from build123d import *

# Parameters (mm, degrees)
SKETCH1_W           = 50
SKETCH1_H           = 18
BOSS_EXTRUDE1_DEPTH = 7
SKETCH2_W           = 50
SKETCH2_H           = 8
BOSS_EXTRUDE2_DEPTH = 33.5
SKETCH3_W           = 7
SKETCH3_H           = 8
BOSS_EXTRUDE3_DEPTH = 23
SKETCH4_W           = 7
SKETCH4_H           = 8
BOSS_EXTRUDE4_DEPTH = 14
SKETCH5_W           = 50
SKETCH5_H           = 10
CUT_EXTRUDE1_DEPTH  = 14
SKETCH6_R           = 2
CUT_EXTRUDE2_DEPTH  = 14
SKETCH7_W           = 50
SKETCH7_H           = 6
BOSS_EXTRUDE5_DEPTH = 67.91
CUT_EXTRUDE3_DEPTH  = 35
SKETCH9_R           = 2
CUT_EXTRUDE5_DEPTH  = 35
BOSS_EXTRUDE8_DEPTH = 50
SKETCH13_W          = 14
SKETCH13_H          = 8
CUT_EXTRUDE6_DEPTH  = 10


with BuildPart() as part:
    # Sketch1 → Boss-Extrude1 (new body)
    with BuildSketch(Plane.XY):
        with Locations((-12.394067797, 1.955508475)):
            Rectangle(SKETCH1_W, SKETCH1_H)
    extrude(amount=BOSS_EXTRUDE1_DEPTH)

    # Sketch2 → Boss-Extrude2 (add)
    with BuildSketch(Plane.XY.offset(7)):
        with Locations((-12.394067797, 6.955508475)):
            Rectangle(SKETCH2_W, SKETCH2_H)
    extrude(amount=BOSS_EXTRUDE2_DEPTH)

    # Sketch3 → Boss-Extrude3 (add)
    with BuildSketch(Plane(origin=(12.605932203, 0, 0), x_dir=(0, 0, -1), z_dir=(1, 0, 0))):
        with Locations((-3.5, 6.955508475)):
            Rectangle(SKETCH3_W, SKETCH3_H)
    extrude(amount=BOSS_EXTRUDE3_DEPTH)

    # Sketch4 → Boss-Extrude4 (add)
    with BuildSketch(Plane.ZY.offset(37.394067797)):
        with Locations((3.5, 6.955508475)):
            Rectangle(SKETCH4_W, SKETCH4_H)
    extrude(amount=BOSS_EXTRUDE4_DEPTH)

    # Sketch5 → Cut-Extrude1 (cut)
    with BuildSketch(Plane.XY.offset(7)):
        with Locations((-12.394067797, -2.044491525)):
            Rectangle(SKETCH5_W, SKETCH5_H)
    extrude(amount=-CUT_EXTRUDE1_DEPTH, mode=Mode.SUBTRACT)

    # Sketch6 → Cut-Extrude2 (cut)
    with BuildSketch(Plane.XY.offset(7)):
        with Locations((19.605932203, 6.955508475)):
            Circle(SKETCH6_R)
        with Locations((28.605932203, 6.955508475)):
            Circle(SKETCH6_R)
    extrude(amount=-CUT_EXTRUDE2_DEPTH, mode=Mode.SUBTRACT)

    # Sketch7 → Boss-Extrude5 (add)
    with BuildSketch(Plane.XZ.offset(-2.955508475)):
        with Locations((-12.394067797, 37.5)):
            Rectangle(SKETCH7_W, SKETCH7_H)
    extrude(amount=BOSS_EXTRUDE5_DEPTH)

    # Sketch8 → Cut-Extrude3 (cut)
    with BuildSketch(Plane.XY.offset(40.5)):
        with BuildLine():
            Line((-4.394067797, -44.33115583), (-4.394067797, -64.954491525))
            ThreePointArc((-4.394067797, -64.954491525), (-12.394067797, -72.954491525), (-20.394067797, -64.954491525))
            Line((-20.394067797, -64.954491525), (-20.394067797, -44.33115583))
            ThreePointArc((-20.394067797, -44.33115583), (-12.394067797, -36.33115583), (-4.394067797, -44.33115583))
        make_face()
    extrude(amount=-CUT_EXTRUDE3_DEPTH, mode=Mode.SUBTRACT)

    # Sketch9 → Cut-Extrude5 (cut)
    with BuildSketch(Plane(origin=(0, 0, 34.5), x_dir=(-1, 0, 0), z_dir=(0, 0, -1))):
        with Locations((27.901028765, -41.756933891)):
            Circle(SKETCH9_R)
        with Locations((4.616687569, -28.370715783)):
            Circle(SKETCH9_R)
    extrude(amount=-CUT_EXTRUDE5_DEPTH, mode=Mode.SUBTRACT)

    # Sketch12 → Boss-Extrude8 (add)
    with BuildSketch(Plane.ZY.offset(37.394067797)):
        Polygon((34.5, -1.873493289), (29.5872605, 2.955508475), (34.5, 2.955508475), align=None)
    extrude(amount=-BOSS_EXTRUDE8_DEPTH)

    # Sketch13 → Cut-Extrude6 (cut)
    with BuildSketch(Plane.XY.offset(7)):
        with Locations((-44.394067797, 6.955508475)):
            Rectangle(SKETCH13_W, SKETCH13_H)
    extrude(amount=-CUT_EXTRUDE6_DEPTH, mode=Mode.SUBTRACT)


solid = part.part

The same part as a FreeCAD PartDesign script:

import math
import FreeCAD as App
import Part
import Sketcher


def add_polygon(sketch, points):
    """Adds a closed chain of lines whose ends are joined by coincident constraints."""
    first, n = sketch.GeometryCount, len(points)
    for a, b in zip(points, points[1:] + points[:1]):
        sketch.addGeometry(Part.LineSegment(App.Vector(*a, 0), App.Vector(*b, 0)), False)
    for i in range(n):
        sketch.addConstraint(Sketcher.Constraint("Coincident", first + i, 2, first + (i + 1) % n, 1))

doc = App.newDocument("Part")
body = doc.addObject("PartDesign::Body", "Body")

sketch1 = doc.addObject("Sketcher::SketchObject", "Sketch")
body.addObject(sketch1)
sketch1.AttachmentSupport = (doc.XY_Plane, [""])
sketch1.MapMode = "FlatFace"
add_polygon(sketch1, [(-37, 11), (-37, -7), (13, -7), (13, 11)])
sketch1.addConstraint([
    Sketcher.Constraint("Vertical", 0),
    Sketcher.Constraint("Horizontal", 1),
    Sketcher.Constraint("Vertical", 2),
    Sketcher.Constraint("Horizontal", 3),
    Sketcher.Constraint("DistanceX", 1, 1, 1, 2, 50.0),
    Sketcher.Constraint("DistanceY", 0, 2, 0, 1, 18.0),
    Sketcher.Constraint("DistanceY", 0, 2, -1, 1, 7.044492),
    Sketcher.Constraint("DistanceX", 0, 2, -1, 1, 37.394068),
])
pad1 = doc.addObject("PartDesign::Pad", "Pad")
body.addObject(pad1)
pad1.Profile = sketch1
pad1.Length = 7

sketch2 = doc.addObject("Sketcher::SketchObject", "Sketch001")
body.addObject(sketch2)
sketch2.AttachmentSupport = (doc.XY_Plane, [""])
sketch2.MapMode = "FlatFace"
sketch2.AttachmentOffset = App.Placement(App.Vector(0, 0, 7), App.Rotation())
add_polygon(sketch2, [(-37, 11), (-37, 3), (13, 3), (13, 11)])
sketch2.addConstraint([
    Sketcher.Constraint("Vertical", 0),
    Sketcher.Constraint("Horizontal", 1),
    Sketcher.Constraint("Vertical", 2),
    Sketcher.Constraint("Horizontal", 3),
    Sketcher.Constraint("DistanceX", 1, 1, 1, 2, 50.0),
    Sketcher.Constraint("DistanceY", 0, 2, 0, 1, 8.0),
    Sketcher.Constraint("DistanceY", -1, 1, 0, 2, 2.955508),
    Sketcher.Constraint("DistanceX", 0, 2, -1, 1, 37.394068),
])
pad2 = doc.addObject("PartDesign::Pad", "Pad001")
body.addObject(pad2)
pad2.Profile = sketch2
pad2.Length = 33.5

sketch3 = doc.addObject("Sketcher::SketchObject", "Sketch002")
body.addObject(sketch3)
sketch3.AttachmentSupport = (doc.YZ_Plane, [""])
sketch3.MapMode = "FlatFace"
sketch3.AttachmentOffset = App.Placement(App.Vector(0, 0, 12.605932), App.Rotation())
add_polygon(sketch3, [(11, 7), (3, 7), (3, 0), (11, 0)])
sketch3.addConstraint([
    Sketcher.Constraint("Horizontal", 0),
    Sketcher.Constraint("Vertical", 1),
    Sketcher.Constraint("Horizontal", 2),
    Sketcher.Constraint("Vertical", 3),
    Sketcher.Constraint("PointOnObject", 1, 2, -1),
    Sketcher.Constraint("DistanceX", 0, 2, 0, 1, 8.0),
    Sketcher.Constraint("DistanceY", 1, 2, 1, 1, 7.0),
    Sketcher.Constraint("DistanceX", -1, 1, 0, 2, 2.955508),
])
pad3 = doc.addObject("PartDesign::Pad", "Pad002")
body.addObject(pad3)
pad3.Profile = sketch3
pad3.Length = 23

sketch4 = doc.addObject("Sketcher::SketchObject", "Sketch003")
body.addObject(sketch4)
sketch4.AttachmentSupport = (doc.YZ_Plane, [""])
sketch4.MapMode = "FlatFace"
sketch4.AttachmentOffset = App.Placement(App.Vector(0, 0, -37.394068), App.Rotation())
add_polygon(sketch4, [(11, 0), (3, 0), (3, 7), (11, 7)])
sketch4.addConstraint([
    Sketcher.Constraint("Horizontal", 0),
    Sketcher.Constraint("Vertical", 1),
    Sketcher.Constraint("Horizontal", 2),
    Sketcher.Constraint("Vertical", 3),
    Sketcher.Constraint("PointOnObject", 0, 2, -1),
    Sketcher.Constraint("DistanceX", 0, 2, 0, 1, 8.0),
    Sketcher.Constraint("DistanceY", 1, 1, 1, 2, 7.0),
    Sketcher.Constraint("DistanceX", -1, 1, 0, 2, 2.955508),
])
pad4 = doc.addObject("PartDesign::Pad", "Pad003")
body.addObject(pad4)
pad4.Profile = sketch4
pad4.Length = 14
pad4.Reversed = True

sketch5 = doc.addObject("Sketcher::SketchObject", "Sketch004")
body.addObject(sketch5)
sketch5.AttachmentSupport = (doc.XY_Plane, [""])
sketch5.MapMode = "FlatFace"
sketch5.AttachmentOffset = App.Placement(App.Vector(0, 0, 7), App.Rotation())
add_polygon(sketch5, [(-37, 3), (-37, -7), (13, -7), (13, 3)])
sketch5.addConstraint([
    Sketcher.Constraint("Vertical", 0),
    Sketcher.Constraint("Horizontal", 1),
    Sketcher.Constraint("Vertical", 2),
    Sketcher.Constraint("Horizontal", 3),
    Sketcher.Constraint("DistanceX", 1, 1, 1, 2, 50.0),
    Sketcher.Constraint("DistanceY", 0, 2, 0, 1, 10.0),
    Sketcher.Constraint("DistanceY", 0, 2, -1, 1, 7.044492),
    Sketcher.Constraint("DistanceX", 0, 2, -1, 1, 37.394068),
])
pocket1 = doc.addObject("PartDesign::Pocket", "Pocket")
body.addObject(pocket1)
pocket1.Profile = sketch5
pocket1.Length = 14

sketch6 = doc.addObject("Sketcher::SketchObject", "Sketch005")
body.addObject(sketch6)
sketch6.AttachmentSupport = (doc.XY_Plane, [""])
sketch6.MapMode = "FlatFace"
sketch6.AttachmentOffset = App.Placement(App.Vector(0, 0, 7), App.Rotation())
sketch6.addGeometry([
    Part.Circle(App.Vector(19.6, 7, 0), App.Vector(0, 0, 1), 2),
    Part.Circle(App.Vector(28.6, 7, 0), App.Vector(0, 0, 1), 2),
], False)
sketch6.addConstraint([
    Sketcher.Constraint("Equal", 0, 1),
    Sketcher.Constraint("Horizontal", 0, 3, 1, 3),
    Sketcher.Constraint("Diameter", 0, 4.0),
    Sketcher.Constraint("DistanceX", 0, 3, 1, 3, 9.0),
    Sketcher.Constraint("DistanceY", -1, 1, 0, 3, 6.955508),
    Sketcher.Constraint("DistanceX", -1, 1, 0, 3, 19.605932),
])
pocket2 = doc.addObject("PartDesign::Pocket", "Pocket001")
body.addObject(pocket2)
pocket2.Profile = sketch6
pocket2.Length = 14

sketch7 = doc.addObject("Sketcher::SketchObject", "Sketch006")
body.addObject(sketch7)
sketch7.AttachmentSupport = (doc.XZ_Plane, [""])
sketch7.MapMode = "FlatFace"
sketch7.AttachmentOffset = App.Placement(App.Vector(0, 0, -2.955508), App.Rotation())
add_polygon(sketch7, [(-37, 40), (-37, 34), (13, 34), (13, 40)])
sketch7.addConstraint([
    Sketcher.Constraint("Vertical", 0),
    Sketcher.Constraint("Horizontal", 1),
    Sketcher.Constraint("Vertical", 2),
    Sketcher.Constraint("Horizontal", 3),
    Sketcher.Constraint("DistanceX", 1, 1, 1, 2, 50.0),
    Sketcher.Constraint("DistanceY", 0, 2, 0, 1, 6.0),
    Sketcher.Constraint("DistanceY", -1, 1, 0, 2, 34.5),
    Sketcher.Constraint("DistanceX", 0, 2, -1, 1, 37.394068),
])
pad5 = doc.addObject("PartDesign::Pad", "Pad004")
body.addObject(pad5)
pad5.Profile = sketch7
pad5.Length = 67.91

sketch8 = doc.addObject("Sketcher::SketchObject", "Sketch007")
body.addObject(sketch8)
sketch8.AttachmentSupport = (doc.XY_Plane, [""])
sketch8.MapMode = "FlatFace"
sketch8.AttachmentOffset = App.Placement(App.Vector(0, 0, 40.5), App.Rotation())
sketch8.addGeometry([
    Part.LineSegment(App.Vector(-4, -65, 0), App.Vector(-4, -44, 0)),
    Part.ArcOfCircle(Part.Circle(App.Vector(-12, -44, 0), App.Vector(0, 0, 1), 8), math.radians(0), math.radians(180)),
    Part.LineSegment(App.Vector(-20, -44, 0), App.Vector(-20, -65, 0)),
    Part.ArcOfCircle(Part.Circle(App.Vector(-12, -65, 0), App.Vector(0, 0, 1), 8), math.radians(180), math.radians(360)),
], False)
sketch8.addConstraint([
    Sketcher.Constraint("Tangent", 0, 2, 1, 1),
    Sketcher.Constraint("Tangent", 1, 2, 2, 1),
    Sketcher.Constraint("Tangent", 2, 2, 3, 1),
    Sketcher.Constraint("Tangent", 3, 2, 0, 1),
    Sketcher.Constraint("Vertical", 0),
    Sketcher.Constraint("Vertical", 2),
    Sketcher.Constraint("Radius", 1, 8.0),
    Sketcher.Constraint("DistanceY", 0, 1, 0, 2, 20.623336),
    Sketcher.Constraint("DistanceY", 3, 3, -1, 1, 64.954492),
    Sketcher.Constraint("DistanceX", 1, 3, -1, 1, 12.394068),
])
pocket3 = doc.addObject("PartDesign::Pocket", "Pocket002")
body.addObject(pocket3)
pocket3.Profile = sketch8
pocket3.Length = 35

sketch9 = doc.addObject("Sketcher::SketchObject", "Sketch008")
body.addObject(sketch9)
sketch9.AttachmentSupport = (doc.XY_Plane, [""])
sketch9.MapMode = "FlatFace"
sketch9.AttachmentOffset = App.Placement(App.Vector(0, 0, 34.5), App.Rotation())
sketch9.addGeometry([
    Part.Circle(App.Vector(-27.9, -41.8, 0), App.Vector(0, 0, 1), 2),
    Part.Circle(App.Vector(-4.6, -28.4, 0), App.Vector(0, 0, 1), 2),
], False)
sketch9.addConstraint([
    Sketcher.Constraint("Equal", 0, 1),
    Sketcher.Constraint("Diameter", 0, 4.0),
    Sketcher.Constraint("DistanceX", 0, 3, -1, 1, 27.901029),
    Sketcher.Constraint("DistanceX", 0, 3, 1, 3, 23.284341),
    Sketcher.Constraint("DistanceY", 0, 3, 1, 3, 13.386218),
    Sketcher.Constraint("DistanceY", 0, 3, -1, 1, 41.756934),
])
pocket4 = doc.addObject("PartDesign::Pocket", "Pocket003")
body.addObject(pocket4)
pocket4.Profile = sketch9
pocket4.Length = 35
pocket4.Reversed = True

sketch10 = doc.addObject("Sketcher::SketchObject", "Sketch009")
body.addObject(sketch10)
sketch10.AttachmentSupport = (doc.YZ_Plane, [""])
sketch10.MapMode = "FlatFace"
sketch10.AttachmentOffset = App.Placement(App.Vector(0, 0, -37.394068), App.Rotation())
add_polygon(sketch10, [(3, 29.6), (-1.9, 34.5), (3, 34.5)])
sketch10.addConstraint([
    Sketcher.Constraint("Horizontal", 1),
    Sketcher.Constraint("Vertical", 2),
    Sketcher.Constraint("DistanceY", -1, 1, 0, 2, 34.5),
    Sketcher.Constraint("DistanceX", 1, 1, 1, 2, 4.829002),
    Sketcher.Constraint("DistanceY", 2, 2, 2, 1, 4.91274),
    Sketcher.Constraint("DistanceX", -1, 1, 1, 2, 2.955508),
])
pad6 = doc.addObject("PartDesign::Pad", "Pad005")
body.addObject(pad6)
pad6.Profile = sketch10
pad6.Length = 50

sketch11 = doc.addObject("Sketcher::SketchObject", "Sketch010")
body.addObject(sketch11)
sketch11.AttachmentSupport = (doc.XY_Plane, [""])
sketch11.MapMode = "FlatFace"
sketch11.AttachmentOffset = App.Placement(App.Vector(0, 0, 7), App.Rotation())
add_polygon(sketch11, [(-51, 11), (-51, 3), (-37, 3), (-37, 11)])
sketch11.addConstraint([
    Sketcher.Constraint("Vertical", 0),
    Sketcher.Constraint("Horizontal", 1),
    Sketcher.Constraint("Vertical", 2),
    Sketcher.Constraint("Horizontal", 3),
    Sketcher.Constraint("DistanceX", 1, 1, 1, 2, 14.0),
    Sketcher.Constraint("DistanceY", 0, 2, 0, 1, 8.0),
    Sketcher.Constraint("DistanceY", -1, 1, 0, 2, 2.955508),
    Sketcher.Constraint("DistanceX", 0, 2, -1, 1, 51.394068),
])
pocket5 = doc.addObject("PartDesign::Pocket", "Pocket004")
body.addObject(pocket5)
pocket5.Profile = sketch11
pocket5.Length = 10

doc.recompute()
